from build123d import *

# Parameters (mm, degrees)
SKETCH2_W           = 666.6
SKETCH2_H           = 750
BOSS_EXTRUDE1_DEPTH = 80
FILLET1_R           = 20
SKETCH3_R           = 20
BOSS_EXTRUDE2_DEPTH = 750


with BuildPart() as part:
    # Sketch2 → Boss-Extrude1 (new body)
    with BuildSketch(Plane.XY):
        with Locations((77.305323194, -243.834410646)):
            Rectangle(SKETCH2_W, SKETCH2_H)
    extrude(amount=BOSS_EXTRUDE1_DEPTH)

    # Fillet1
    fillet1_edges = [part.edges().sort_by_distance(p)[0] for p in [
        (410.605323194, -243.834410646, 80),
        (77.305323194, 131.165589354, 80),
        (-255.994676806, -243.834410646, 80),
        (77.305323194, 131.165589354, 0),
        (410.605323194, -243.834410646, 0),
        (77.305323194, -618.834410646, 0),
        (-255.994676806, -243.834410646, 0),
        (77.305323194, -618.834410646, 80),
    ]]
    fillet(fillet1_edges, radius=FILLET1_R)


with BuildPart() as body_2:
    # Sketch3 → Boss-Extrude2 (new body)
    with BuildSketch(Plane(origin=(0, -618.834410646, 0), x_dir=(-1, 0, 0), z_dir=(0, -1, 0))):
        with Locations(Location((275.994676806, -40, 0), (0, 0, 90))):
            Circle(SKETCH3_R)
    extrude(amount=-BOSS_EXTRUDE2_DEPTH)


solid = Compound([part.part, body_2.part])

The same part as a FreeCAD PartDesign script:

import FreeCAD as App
import Part
import Sketcher

V = App.Vector
Q = App.Units.Quantity


def edges_at(feature, points):
    """Names of the edges that pass closest to the given points."""
    edges = feature.Shape.Edges
    near = lambda p: min(range(len(edges)), key=lambda i: edges[i].distToShape(Part.Vertex(*p))[0])
    return sorted({f"Edge{near(p) + 1}" for p in points})


def add_polygon(sketch, points):
    """Adds a closed chain of lines whose ends are joined by coincident constraints."""
    first, n = sketch.GeometryCount, len(points)
    for a, b in zip(points, points[1:] + points[:1]):
        sketch.addGeometry(Part.LineSegment(App.Vector(*a, 0), App.Vector(*b, 0)), False)
    for i in range(n):
        sketch.addConstraint(Sketcher.Constraint("Coincident", first + i, 2, first + (i + 1) % n, 1))

doc = App.newDocument("Part")
params = doc.addObject("Spreadsheet::Sheet", "Params")
for row, (alias, value) in enumerate([
    ("sketch1_height", "750 mm"),
    ("sketch1_width", "666.6 mm"),
    ("pad1_length", "80 mm"),
    ("fillet_radius", "20 mm"),
    ("sketch2_diameter", "40 mm"),
    ("pad2_length", "750 mm"),
], start=1):
    params.set(f"A{row}", alias)
    params.set(f"B{row}", "=" + value)
    params.setAlias(f"B{row}", alias)

body = doc.addObject("PartDesign::Body", "Body")

# Sketch on XY plane
sketch1 = body.newObject("Sketcher::SketchObject", "Sketch")
sketch1.AttachmentSupport = (doc.getObject("XY_Plane"), [""])
sketch1.MapMode = "FlatFace"
add_polygon(sketch1, [(-256, 131), (-256, -619), (411, -619), (411, 131)])  # lines 0-3
sketch1.addConstraint(Sketcher.Constraint("Vertical", 0))
sketch1.addConstraint(Sketcher.Constraint("Horizontal", 1))
sketch1.addConstraint(Sketcher.Constraint("Vertical", 2))
sketch1.addConstraint(Sketcher.Constraint("Horizontal", 3))
sketch1.addConstraint(Sketcher.Constraint("DistanceY", 0, 2, 0, 1, Q("750 mm")))
sketch1.addConstraint(Sketcher.Constraint("DistanceX", 1, 1, 1, 2, Q("666.6 mm")))
sketch1.addConstraint(Sketcher.Constraint("DistanceY", 0, 2, -1, 1, Q("618.834411 mm")))
sketch1.addConstraint(Sketcher.Constraint("DistanceX", 0, 2, -1, 1, Q("255.994677 mm")))
sketch1.setExpression("Constraints[8]", "Params.sketch1_height")
sketch1.setExpression("Constraints[9]", "Params.sketch1_width")
pad1 = body.newObject("PartDesign::Pad", "Pad")
pad1.Profile = sketch1
pad1.setExpression("Length", "Params.pad1_length")
doc.recompute()

fillet = body.newObject("PartDesign::Fillet", "Fillet")
fillet.Base = (pad1, edges_at(pad1, [
    (410.605, -243.834, 80),
    (77.305, 131.166, 80),
    (-255.995, -243.834, 80),
    (77.305, 131.166, 0),
    (410.605, -243.834, 0),
    (77.305, -618.834, 0),
    (-255.995, -243.834, 0),
    (77.305, -618.834, 80),
]))
fillet.setExpression("Radius", "Params.fillet_radius")
body2 = doc.addObject("PartDesign::Body", "Body001")

# Sketch on XZ plane
sketch2 = body2.newObject("Sketcher::SketchObject", "Sketch001")
sketch2.AttachmentSupport = (doc.getObject("XZ_Plane001"), [""])
sketch2.MapMode = "FlatFace"
sketch2.AttachmentOffset = App.Placement(V(0, 0, 618.834411), App.Rotation())
sketch2.addGeometry(Part.Circle(V(-276, 40, 0), V(0, 0, 1), 20), False)
sketch2.addConstraint(Sketcher.Constraint("Diameter", 0, Q("40 mm")))
sketch2.addConstraint(Sketcher.Constraint("DistanceY", -1, 1, 0, 3, Q("40 mm")))
sketch2.addConstraint(Sketcher.Constraint("DistanceX", 0, 3, -1, 1, Q("275.994677 mm")))
sketch2.setExpression("Constraints[0]", "Params.sketch2_diameter")
pad2 = body2.newObject("PartDesign::Pad", "Pad001")
pad2.Profile = sketch2
pad2.setExpression("Length", "Params.pad2_length")
pad2.Reversed = True

doc.recompute()
